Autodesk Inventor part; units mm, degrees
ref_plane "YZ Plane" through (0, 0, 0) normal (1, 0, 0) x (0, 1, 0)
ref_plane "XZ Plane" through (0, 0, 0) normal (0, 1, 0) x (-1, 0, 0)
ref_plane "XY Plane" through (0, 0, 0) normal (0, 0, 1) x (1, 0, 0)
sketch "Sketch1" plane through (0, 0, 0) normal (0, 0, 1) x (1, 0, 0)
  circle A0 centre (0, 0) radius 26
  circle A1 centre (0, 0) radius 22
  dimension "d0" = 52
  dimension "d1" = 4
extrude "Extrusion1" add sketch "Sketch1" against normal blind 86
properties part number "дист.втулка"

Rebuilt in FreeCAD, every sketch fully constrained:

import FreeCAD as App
import Part
import Sketcher

doc = App.newDocument("Part")
body = doc.addObject("PartDesign::Body", "Body")

sketch1 = doc.addObject("Sketcher::SketchObject", "Sketch")
body.addObject(sketch1)
sketch1.AttachmentSupport = (doc.XY_Plane, [""])
sketch1.MapMode = "FlatFace"
sketch1.addGeometry(Part.Circle(App.Vector(0, 0, 0), App.Vector(0, 0, 1), 26), False)
sketch1.addGeometry(Part.Circle(App.Vector(0, 0, 0), App.Vector(0, 0, 1), 22), False)
sketch1.addConstraint(Sketcher.Constraint("Coincident", 0, 3, -1, 1))
sketch1.addConstraint(Sketcher.Constraint("Coincident", 1, 3, -1, 1))
sketch1.addConstraint(Sketcher.Constraint("Diameter", 0, 52.0))
sketch1.addConstraint(Sketcher.Constraint("Diameter", 1, 44.0))
pad1 = doc.addObject("PartDesign::Pad", "Pad")
body.addObject(pad1)
pad1.Profile = sketch1
pad1.Length = 86
pad1.Reversed = True

doc.recompute()
